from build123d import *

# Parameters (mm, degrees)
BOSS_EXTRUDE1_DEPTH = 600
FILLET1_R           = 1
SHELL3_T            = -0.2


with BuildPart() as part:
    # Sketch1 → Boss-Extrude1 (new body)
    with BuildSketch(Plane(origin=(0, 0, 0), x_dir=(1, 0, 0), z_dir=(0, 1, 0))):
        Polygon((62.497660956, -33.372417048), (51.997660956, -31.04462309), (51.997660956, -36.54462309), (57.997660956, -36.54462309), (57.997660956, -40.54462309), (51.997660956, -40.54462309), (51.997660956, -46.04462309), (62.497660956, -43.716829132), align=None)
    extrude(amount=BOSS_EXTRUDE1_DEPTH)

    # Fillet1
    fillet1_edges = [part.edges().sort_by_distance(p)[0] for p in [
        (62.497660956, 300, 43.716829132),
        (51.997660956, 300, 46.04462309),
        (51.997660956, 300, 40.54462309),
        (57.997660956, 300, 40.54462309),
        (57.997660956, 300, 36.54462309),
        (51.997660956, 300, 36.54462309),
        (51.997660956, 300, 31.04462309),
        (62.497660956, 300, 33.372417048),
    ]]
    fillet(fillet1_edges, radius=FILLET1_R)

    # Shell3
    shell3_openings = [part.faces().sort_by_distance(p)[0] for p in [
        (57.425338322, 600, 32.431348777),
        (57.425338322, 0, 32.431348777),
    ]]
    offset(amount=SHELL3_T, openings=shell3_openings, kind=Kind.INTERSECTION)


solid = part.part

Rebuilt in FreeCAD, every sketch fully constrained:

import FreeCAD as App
import Part
import Sketcher
from FreeCAD import Vector
Q = App.Units.Quantity


def edges_at(feature, points):
    """Names of the edges that pass closest to the given points."""
    edges = feature.Shape.Edges
    near = lambda p: min(range(len(edges)), key=lambda i: edges[i].distToShape(Part.Vertex(*p))[0])
    return sorted({f"Edge{near(p) + 1}" for p in points})


def faces_at(feature, points):
    """Names of the faces that lie closest to the given points."""
    faces = feature.Shape.Faces
    near = lambda p: min(range(len(faces)), key=lambda i: faces[i].distToShape(Part.Vertex(*p))[0])
    return sorted({f"Face{near(p) + 1}" for p in points})


def add_polygon(sketch, points):
    """Adds a closed chain of lines whose ends are joined by coincident constraints."""
    first, n = sketch.GeometryCount, len(points)
    for a, b in zip(points, points[1:] + points[:1]):
        sketch.addGeometry(Part.LineSegment(App.Vector(*a, 0), App.Vector(*b, 0)), False)
    for i in range(n):
        sketch.addConstraint(Sketcher.Constraint("Coincident", first + i, 2, first + (i + 1) % n, 1))

doc = App.newDocument("Part")
body = doc.addObject("PartDesign::Body", "Body")

# Sketch on XZ plane
sketch1 = body.newObject("Sketcher::SketchObject", "Sketch")
sketch1.AttachmentSupport = (doc.getObject("XZ_Plane"), [""])
sketch1.MapMode = "FlatFace"
add_polygon(sketch1, [(62.5, 33.4), (52, 31), (52, 36.5), (58, 36.5), (58, 40.5), (52, 40.5), (52, 46), (62.5, 43.7)])  # lines 0-7
sketch1.addConstraint([
    Sketcher.Constraint("Vertical", 1),
    Sketcher.Constraint("Horizontal", 2),
    Sketcher.Constraint("Vertical", 3),
    Sketcher.Constraint("Horizontal", 4),
    Sketcher.Constraint("Vertical", 5),
    Sketcher.Constraint("Vertical", 7),
    Sketcher.Constraint("Vertical", 1, 2, 4, 2),
    Sketcher.Constraint("Equal", 1, 5),
    Sketcher.Constraint("Equal", 0, 6),
    Sketcher.Constraint("DistanceX", 2, 1, 2, 2, 6.0),
    Sketcher.Constraint("DistanceY", 3, 1, 3, 2, 4.0),
    Sketcher.Constraint("DistanceY", 1, 1, 1, 2, 5.5),
    Sketcher.Constraint("Angle", 0, Q("-167.5 deg")),
    Sketcher.Constraint("DistanceX", 3, 2, 6, 2, 4.5),
    Sketcher.Constraint("DistanceX", -1, 1, 0, 2, 51.997661),
    Sketcher.Constraint("DistanceY", -1, 1, 6, 2, 43.716829),
])
pad1 = body.newObject("PartDesign::Pad", "Pad")
pad1.Profile = sketch1
pad1.Length = 600
pad1.Reversed = True
doc.recompute()

fillet = body.newObject("PartDesign::Fillet", "Fillet")
fillet.Base = (pad1, edges_at(pad1, [
    (62.498, 300, 43.717),
    (51.998, 300, 46.045),
    (51.998, 300, 40.545),
    (57.998, 300, 40.545),
    (57.998, 300, 36.545),
    (51.998, 300, 36.545),
    (51.998, 300, 31.045),
    (62.498, 300, 33.372),
]))
fillet.Radius = 1
doc.recompute()

thickness = body.newObject("PartDesign::Thickness", "Thickness")
thickness.Base = (fillet, faces_at(fillet, [(55.148, 600, 41.446), (55.148, 0, 41.446)]))
thickness.Value = 0.2
thickness.Reversed = True
thickness.Join = "Intersection"

doc.recompute()
